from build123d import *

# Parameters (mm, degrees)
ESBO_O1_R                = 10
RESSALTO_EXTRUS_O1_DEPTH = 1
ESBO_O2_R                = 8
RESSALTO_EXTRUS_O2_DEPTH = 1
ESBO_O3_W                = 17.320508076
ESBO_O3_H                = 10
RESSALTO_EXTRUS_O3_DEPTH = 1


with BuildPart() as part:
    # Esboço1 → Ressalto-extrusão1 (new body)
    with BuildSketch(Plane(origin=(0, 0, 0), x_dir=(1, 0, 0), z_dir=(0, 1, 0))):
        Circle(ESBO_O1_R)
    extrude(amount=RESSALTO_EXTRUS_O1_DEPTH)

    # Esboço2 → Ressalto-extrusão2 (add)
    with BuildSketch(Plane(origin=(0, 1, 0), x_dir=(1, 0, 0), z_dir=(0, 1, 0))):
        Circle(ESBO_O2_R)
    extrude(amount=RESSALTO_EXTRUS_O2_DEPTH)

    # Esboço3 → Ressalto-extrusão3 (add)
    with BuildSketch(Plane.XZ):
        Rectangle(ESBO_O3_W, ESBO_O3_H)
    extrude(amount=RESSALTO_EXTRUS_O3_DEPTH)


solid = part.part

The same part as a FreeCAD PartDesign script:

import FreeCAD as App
import Part
import Sketcher

V = App.Vector
Q = App.Units.Quantity

doc = App.newDocument("Part")
body = doc.addObject("PartDesign::Body", "Body")

# Sketch on XZ plane
sketch1 = body.newObject("Sketcher::SketchObject", "Sketch")
sketch1.AttachmentSupport = (doc.getObject("XZ_Plane"), [""])
sketch1.MapMode = "FlatFace"
sketch1.addGeometry(Part.Circle(V(0, 0, 0), V(0, 0, 1), 10), False)
sketch1.addConstraint(Sketcher.Constraint("Coincident", 0, 3, -1, 1))
sketch1.addConstraint(Sketcher.Constraint("Diameter", 0, Q("20 mm")))
pad1 = body.newObject("PartDesign::Pad", "Pad")
pad1.Profile = sketch1
pad1.Length = 1
pad1.Reversed = True

# Sketch on XZ plane
sketch2 = body.newObject("Sketcher::SketchObject", "Sketch001")
sketch2.AttachmentSupport = (doc.getObject("XZ_Plane"), [""])
sketch2.MapMode = "FlatFace"
sketch2.AttachmentOffset = App.Placement(V(0, 0, -1), App.Rotation())
sketch2.addGeometry(Part.Circle(V(0, 0, 0), V(0, 0, 1), 8), False)
sketch2.addConstraint(Sketcher.Constraint("Coincident", 0, 3, -1, 1))
sketch2.addConstraint(Sketcher.Constraint("Diameter", 0, Q("16 mm")))
pad2 = body.newObject("PartDesign::Pad", "Pad001")
pad2.Profile = sketch2
pad2.Length = 1
pad2.Reversed = True

# Sketch on XZ plane
sketch3 = body.newObject("Sketcher::SketchObject", "Sketch002")
sketch3.AttachmentSupport = (doc.getObject("XZ_Plane"), [""])
sketch3.MapMode = "FlatFace"
sketch3.addGeometry(Part.LineSegment(V(-9, 5, 0), V(-9, -5, 0)), False)
sketch3.addGeometry(Part.LineSegment(V(-9, -5, 0), V(9, -5, 0)), False)
sketch3.addGeometry(Part.LineSegment(V(9, -5, 0), V(9, 5, 0)), False)
sketch3.addGeometry(Part.LineSegment(V(9, 5, 0), V(-9, 5, 0)), False)
sketch3.addConstraint(Sketcher.Constraint("Coincident", 0, 2, 1, 1))
sketch3.addConstraint(Sketcher.Constraint("Coincident", 1, 2, 2, 1))
sketch3.addConstraint(Sketcher.Constraint("Coincident", 2, 2, 3, 1))
sketch3.addConstraint(Sketcher.Constraint("Coincident", 3, 2, 0, 1))
sketch3.addConstraint(Sketcher.Constraint("Vertical", 0))
sketch3.addConstraint(Sketcher.Constraint("Horizontal", 1))
sketch3.addConstraint(Sketcher.Constraint("Vertical", 2))
sketch3.addConstraint(Sketcher.Constraint("Horizontal", 3))
sketch3.addConstraint(Sketcher.Constraint("Symmetric", 0, 2, 2, 2, -1, 1))
sketch3.addConstraint(Sketcher.Constraint("DistanceY", 0, 2, 0, 1, Q("10 mm")))
sketch3.addConstraint(Sketcher.Constraint("DistanceX", 1, 1, 1, 2, Q("17.320508 mm")))
pad3 = body.newObject("PartDesign::Pad", "Pad002")
pad3.Profile = sketch3
pad3.Length = 1

doc.recompute()
